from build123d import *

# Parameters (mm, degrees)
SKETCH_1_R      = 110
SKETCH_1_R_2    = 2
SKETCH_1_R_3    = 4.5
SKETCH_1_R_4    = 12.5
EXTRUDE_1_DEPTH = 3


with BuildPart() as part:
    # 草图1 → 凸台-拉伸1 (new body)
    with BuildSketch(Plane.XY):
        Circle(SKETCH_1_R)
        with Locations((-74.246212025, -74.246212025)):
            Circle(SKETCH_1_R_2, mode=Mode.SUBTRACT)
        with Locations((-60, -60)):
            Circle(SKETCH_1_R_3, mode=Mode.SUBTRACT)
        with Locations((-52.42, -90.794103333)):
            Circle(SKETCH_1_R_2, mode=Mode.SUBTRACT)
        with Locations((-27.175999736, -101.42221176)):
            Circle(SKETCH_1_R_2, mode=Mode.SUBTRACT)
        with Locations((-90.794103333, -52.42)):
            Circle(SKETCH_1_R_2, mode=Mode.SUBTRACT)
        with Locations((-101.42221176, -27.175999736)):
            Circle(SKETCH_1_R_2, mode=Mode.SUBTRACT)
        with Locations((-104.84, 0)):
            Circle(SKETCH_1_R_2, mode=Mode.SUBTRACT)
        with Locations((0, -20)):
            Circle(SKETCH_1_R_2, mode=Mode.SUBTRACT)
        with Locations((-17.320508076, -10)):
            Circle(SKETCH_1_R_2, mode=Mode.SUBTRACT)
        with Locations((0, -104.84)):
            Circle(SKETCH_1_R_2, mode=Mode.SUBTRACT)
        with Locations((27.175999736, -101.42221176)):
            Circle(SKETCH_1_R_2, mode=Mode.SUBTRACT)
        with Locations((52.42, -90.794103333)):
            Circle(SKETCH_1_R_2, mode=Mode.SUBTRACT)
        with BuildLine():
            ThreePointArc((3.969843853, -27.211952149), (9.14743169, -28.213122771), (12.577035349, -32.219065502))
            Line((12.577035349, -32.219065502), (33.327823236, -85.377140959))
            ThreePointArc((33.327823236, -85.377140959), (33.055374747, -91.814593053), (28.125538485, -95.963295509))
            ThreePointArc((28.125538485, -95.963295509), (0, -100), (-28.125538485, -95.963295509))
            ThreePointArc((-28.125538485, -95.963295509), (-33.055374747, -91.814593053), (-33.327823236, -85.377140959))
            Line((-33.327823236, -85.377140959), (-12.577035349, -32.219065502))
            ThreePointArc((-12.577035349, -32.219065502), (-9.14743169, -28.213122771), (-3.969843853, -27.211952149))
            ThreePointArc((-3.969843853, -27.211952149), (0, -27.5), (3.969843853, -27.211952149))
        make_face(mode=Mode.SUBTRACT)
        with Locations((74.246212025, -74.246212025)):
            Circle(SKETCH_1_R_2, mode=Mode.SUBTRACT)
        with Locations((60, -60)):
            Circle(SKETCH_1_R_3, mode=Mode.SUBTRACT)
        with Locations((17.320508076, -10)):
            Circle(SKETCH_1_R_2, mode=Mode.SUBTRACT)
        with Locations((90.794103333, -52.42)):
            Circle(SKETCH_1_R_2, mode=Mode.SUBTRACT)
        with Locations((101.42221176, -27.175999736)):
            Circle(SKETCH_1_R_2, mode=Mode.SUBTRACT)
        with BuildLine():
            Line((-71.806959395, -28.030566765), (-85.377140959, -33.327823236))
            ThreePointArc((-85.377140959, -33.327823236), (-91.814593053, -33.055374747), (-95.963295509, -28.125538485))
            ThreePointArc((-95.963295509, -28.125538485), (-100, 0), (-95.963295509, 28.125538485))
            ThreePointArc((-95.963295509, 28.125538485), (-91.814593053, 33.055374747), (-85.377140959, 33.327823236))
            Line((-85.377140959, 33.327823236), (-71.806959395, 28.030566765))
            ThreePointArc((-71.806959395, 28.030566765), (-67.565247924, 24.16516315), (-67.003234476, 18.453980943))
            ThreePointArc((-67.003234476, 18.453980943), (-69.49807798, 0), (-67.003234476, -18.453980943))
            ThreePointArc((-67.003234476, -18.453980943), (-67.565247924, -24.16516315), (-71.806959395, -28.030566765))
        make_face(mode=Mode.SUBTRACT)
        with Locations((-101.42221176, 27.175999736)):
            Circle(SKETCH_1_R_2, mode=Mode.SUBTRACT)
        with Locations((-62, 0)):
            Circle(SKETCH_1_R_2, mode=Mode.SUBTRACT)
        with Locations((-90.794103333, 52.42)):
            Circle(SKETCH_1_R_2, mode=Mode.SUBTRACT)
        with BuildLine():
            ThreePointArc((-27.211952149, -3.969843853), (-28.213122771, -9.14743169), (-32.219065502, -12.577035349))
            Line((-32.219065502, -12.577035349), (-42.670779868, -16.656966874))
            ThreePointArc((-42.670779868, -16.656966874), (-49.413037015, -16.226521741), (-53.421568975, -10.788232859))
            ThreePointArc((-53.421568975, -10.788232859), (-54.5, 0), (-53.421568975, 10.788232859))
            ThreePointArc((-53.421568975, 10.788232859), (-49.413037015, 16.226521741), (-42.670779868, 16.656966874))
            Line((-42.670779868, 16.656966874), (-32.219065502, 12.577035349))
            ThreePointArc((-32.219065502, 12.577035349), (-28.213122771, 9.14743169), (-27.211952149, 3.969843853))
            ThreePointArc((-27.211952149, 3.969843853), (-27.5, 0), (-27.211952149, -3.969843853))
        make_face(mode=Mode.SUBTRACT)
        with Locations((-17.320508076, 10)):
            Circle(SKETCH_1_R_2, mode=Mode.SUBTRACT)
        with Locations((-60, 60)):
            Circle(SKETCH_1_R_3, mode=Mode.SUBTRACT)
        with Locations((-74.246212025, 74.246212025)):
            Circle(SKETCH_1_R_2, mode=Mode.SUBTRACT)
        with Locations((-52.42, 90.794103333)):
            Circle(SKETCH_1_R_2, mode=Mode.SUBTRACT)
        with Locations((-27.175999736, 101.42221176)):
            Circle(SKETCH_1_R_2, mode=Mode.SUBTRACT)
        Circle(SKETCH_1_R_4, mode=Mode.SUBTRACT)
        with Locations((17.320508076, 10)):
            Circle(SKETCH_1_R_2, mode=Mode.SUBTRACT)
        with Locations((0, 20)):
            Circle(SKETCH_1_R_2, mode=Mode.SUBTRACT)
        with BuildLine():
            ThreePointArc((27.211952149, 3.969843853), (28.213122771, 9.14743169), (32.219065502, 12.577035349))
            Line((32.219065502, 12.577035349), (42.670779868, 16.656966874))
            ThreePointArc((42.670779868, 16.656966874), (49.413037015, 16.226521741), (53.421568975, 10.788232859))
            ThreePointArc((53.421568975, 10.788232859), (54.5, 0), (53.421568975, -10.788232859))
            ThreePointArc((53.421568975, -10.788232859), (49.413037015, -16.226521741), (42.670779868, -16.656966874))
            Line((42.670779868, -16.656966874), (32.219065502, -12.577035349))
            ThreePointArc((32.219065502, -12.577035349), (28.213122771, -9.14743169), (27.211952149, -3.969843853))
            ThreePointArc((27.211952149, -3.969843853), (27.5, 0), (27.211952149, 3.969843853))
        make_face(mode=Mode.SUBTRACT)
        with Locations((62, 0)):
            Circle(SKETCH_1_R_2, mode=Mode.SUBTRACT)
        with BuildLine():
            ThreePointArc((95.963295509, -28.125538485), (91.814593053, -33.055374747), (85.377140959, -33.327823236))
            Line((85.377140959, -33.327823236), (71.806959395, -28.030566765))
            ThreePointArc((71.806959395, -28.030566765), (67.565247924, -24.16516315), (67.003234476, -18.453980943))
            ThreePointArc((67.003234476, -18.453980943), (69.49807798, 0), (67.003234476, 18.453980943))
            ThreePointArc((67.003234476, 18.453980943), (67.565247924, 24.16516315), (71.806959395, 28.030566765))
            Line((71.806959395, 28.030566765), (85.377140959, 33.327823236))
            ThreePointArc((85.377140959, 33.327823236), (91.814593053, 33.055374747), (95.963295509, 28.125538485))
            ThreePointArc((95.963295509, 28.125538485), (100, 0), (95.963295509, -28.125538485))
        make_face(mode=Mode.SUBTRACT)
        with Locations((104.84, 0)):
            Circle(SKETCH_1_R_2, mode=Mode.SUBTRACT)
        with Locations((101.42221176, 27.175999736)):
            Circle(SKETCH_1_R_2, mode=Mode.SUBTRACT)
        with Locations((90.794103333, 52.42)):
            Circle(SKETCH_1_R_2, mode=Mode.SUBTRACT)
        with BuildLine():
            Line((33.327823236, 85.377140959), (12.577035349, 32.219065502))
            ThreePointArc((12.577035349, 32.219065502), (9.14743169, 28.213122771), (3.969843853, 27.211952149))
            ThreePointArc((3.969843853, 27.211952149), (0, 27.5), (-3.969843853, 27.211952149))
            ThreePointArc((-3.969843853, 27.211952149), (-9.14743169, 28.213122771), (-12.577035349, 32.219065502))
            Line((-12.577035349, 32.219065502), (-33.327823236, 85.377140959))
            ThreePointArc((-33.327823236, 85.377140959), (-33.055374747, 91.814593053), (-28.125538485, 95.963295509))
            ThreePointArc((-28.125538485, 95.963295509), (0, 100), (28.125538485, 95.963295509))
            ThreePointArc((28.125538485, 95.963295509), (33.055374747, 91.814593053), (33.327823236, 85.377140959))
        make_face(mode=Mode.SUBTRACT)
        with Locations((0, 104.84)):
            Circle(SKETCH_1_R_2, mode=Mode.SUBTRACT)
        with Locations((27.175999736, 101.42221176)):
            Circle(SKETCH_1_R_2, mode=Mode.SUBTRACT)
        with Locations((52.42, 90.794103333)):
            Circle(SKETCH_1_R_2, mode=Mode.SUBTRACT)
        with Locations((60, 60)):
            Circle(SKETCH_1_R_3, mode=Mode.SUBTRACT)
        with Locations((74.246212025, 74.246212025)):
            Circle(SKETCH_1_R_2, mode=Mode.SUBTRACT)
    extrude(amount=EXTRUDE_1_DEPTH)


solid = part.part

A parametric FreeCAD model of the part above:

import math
import FreeCAD as App
import Part
import Sketcher

V = App.Vector
Q = App.Units.Quantity

doc = App.newDocument("Part")
body = doc.addObject("PartDesign::Body", "Body")

# Sketch on XY plane
sketch1 = doc.addObject("Sketcher::SketchObject", "Sketch")
body.addObject(sketch1)
sketch1.AttachmentSupport = (doc.XY_Plane, [""])
sketch1.MapMode = "FlatFace"
sketch1.addGeometry([
    Part.Circle(V(0, 0, 0), V(0, 0, 1), 110),  # 0
    Part.Circle(V(-74.2, -74.2, 0), V(0, 0, 1), 2),  # 1
    Part.Circle(V(-60, -60, 0), V(0, 0, 1), 4.5),  # 2
    Part.Circle(V(-27.2, -101.4, 0), V(0, 0, 1), 2),  # 3
    Part.Circle(V(-52.4, -90.8, 0), V(0, 0, 1), 2),  # 4
    Part.Circle(V(-90.8, -52.4, 0), V(0, 0, 1), 2),  # 5
    Part.Circle(V(-101.4, -27.2, 0), V(0, 0, 1), 2),  # 6
    Part.Circle(V(-17.3, -10, 0), V(0, 0, 1), 2),  # 7
    Part.Circle(V(0, -104.8, 0), V(0, 0, 1), 2),  # 8
    Part.Circle(V(27.2, -101.4, 0), V(0, 0, 1), 2),  # 9
    Part.Circle(V(52.4, -90.8, 0), V(0, 0, 1), 2),  # 10
    Part.ArcOfCircle(Part.Circle(V(0, 0, 0), V(0, 0, 1), 27.5), math.radians(-98.3), math.radians(-81.7)),  # 11
    Part.ArcOfCircle(Part.Circle(V(5.1, -35.1, 0), V(0, 0, 1), 8), math.radians(21), math.radians(98)),  # 12
    Part.LineSegment(V(12.6, -32.2, 0), V(33.3, -85.4, 0)),  # 13
    Part.ArcOfCircle(Part.Circle(V(25.9, -88.3, 0), V(0, 0, 1), 8), math.radians(-74), math.radians(21)),  # 14
    Part.ArcOfCircle(Part.Circle(V(0, 0, 0), V(0, 0, 1), 100), math.radians(-106), math.radians(-74)),  # 15
    Part.ArcOfCircle(Part.Circle(V(-25.9, -88.3, 0), V(0, 0, 1), 8), math.radians(159), math.radians(254)),  # 16
    Part.LineSegment(V(-33.3, -85.4, 0), V(-12.6, -32.2, 0)),  # 17
    Part.ArcOfCircle(Part.Circle(V(-5.1, -35.1, 0), V(0, 0, 1), 8), math.radians(82), math.radians(159)),  # 18
    Part.Circle(V(74.2, -74.2, 0), V(0, 0, 1), 2),  # 19
    Part.Circle(V(60, -60, 0), V(0, 0, 1), 4.5),  # 20
    Part.Circle(V(0, -20, 0), V(0, 0, 1), 2),  # 21
    Part.Circle(V(17.3, -10, 0), V(0, 0, 1), 2),  # 22
    Part.Circle(V(90.8, -52.4, 0), V(0, 0, 1), 2),  # 23
    Part.Circle(V(101.4, -27.2, 0), V(0, 0, 1), 2),  # 24
    Part.Circle(V(-104.8, 0, 0), V(0, 0, 1), 2),  # 25
    Part.ArcOfCircle(Part.Circle(V(-74.7, -20.6, 0), V(0, 0, 1), 8), math.radians(-69), math.radians(15)),  # 26
    Part.LineSegment(V(-71.8, -28, 0), V(-85.4, -33.3, 0)),  # 27
    Part.ArcOfCircle(Part.Circle(V(-88.3, -25.9, 0), V(0, 0, 1), 8), math.radians(-164), math.radians(-69)),  # 28
    Part.ArcOfCircle(Part.Circle(V(0, 0, 0), V(0, 0, 1), 100), math.radians(164), math.radians(196)),  # 29
    Part.ArcOfCircle(Part.Circle(V(-88.3, 25.9, 0), V(0, 0, 1), 8), math.radians(69), math.radians(164)),  # 30
    Part.LineSegment(V(-85.4, 33.3, 0), V(-71.8, 28, 0)),  # 31
    Part.ArcOfCircle(Part.Circle(V(-74.7, 20.6, 0), V(0, 0, 1), 8), math.radians(-15), math.radians(69)),  # 32
    Part.ArcOfCircle(Part.Circle(V(0, 0, 0), V(0, 0, 1), 69.5), math.radians(165), math.radians(195)),  # 33
    Part.Circle(V(-62, 0, 0), V(0, 0, 1), 2),  # 34
    Part.Circle(V(-101.4, 27.2, 0), V(0, 0, 1), 2),  # 35
    Part.Circle(V(-90.8, 52.4, 0), V(0, 0, 1), 2),  # 36
    Part.ArcOfCircle(Part.Circle(V(0, 0, 0), V(0, 0, 1), 27.5), math.radians(171.7), math.radians(188.3)),  # 37
    Part.ArcOfCircle(Part.Circle(V(-35.1, -5.1, 0), V(0, 0, 1), 8), math.radians(-69), math.radians(8)),  # 38
    Part.LineSegment(V(-32.2, -12.6, 0), V(-42.7, -16.7, 0)),  # 39
    Part.ArcOfCircle(Part.Circle(V(-45.6, -9.2, 0), V(0, 0, 1), 8), math.radians(-169), math.radians(-69)),  # 40
    Part.ArcOfCircle(Part.Circle(V(0, 0, 0), V(0, 0, 1), 54.5), math.radians(169), math.radians(191)),  # 41
    Part.ArcOfCircle(Part.Circle(V(-45.6, 9.2, 0), V(0, 0, 1), 8), math.radians(69), math.radians(169)),  # 42
    Part.LineSegment(V(-42.7, 16.7, 0), V(-32.2, 12.6, 0)),  # 43
    Part.ArcOfCircle(Part.Circle(V(-35.1, 5.1, 0), V(0, 0, 1), 8), math.radians(-8), math.radians(69)),  # 44
    Part.Circle(V(-17.3, 10, 0), V(0, 0, 1), 2),  # 45
    Part.Circle(V(-60, 60, 0), V(0, 0, 1), 4.5),  # 46
    Part.Circle(V(-74.2, 74.2, 0), V(0, 0, 1), 2),  # 47
    Part.Circle(V(-52.4, 90.8, 0), V(0, 0, 1), 2),  # 48
    Part.Circle(V(-27.2, 101.4, 0), V(0, 0, 1), 2),  # 49
    Part.Circle(V(0, 0, 0), V(0, 0, 1), 12.5),  # 50
    Part.Circle(V(17.3, 10, 0), V(0, 0, 1), 2),  # 51
    Part.Circle(V(0, 20, 0), V(0, 0, 1), 2),  # 52
    Part.ArcOfCircle(Part.Circle(V(0, 0, 0), V(0, 0, 1), 27.5), math.radians(-8.3), math.radians(8.3)),  # 53
    Part.ArcOfCircle(Part.Circle(V(35.1, 5.1, 0), V(0, 0, 1), 8), math.radians(111), math.radians(188)),  # 54
    Part.LineSegment(V(32.2, 12.6, 0), V(42.7, 16.7, 0)),  # 55
    Part.ArcOfCircle(Part.Circle(V(45.6, 9.2, 0), V(0, 0, 1), 8), math.radians(11), math.radians(111)),  # 56
    Part.ArcOfCircle(Part.Circle(V(0, 0, 0), V(0, 0, 1), 54.5), math.radians(-11), math.radians(11)),  # 57
    Part.ArcOfCircle(Part.Circle(V(45.6, -9.2, 0), V(0, 0, 1), 8), math.radians(-111), math.radians(-11)),  # 58
    Part.LineSegment(V(42.7, -16.7, 0), V(32.2, -12.6, 0)),  # 59
    Part.ArcOfCircle(Part.Circle(V(35.1, -5.1, 0), V(0, 0, 1), 8), math.radians(172), math.radians(249)),  # 60
    Part.Circle(V(62, 0, 0), V(0, 0, 1), 2),  # 61
    Part.ArcOfCircle(Part.Circle(V(0, 0, 0), V(0, 0, 1), 100), math.radians(-16), math.radians(16)),  # 62
    Part.ArcOfCircle(Part.Circle(V(88.3, -25.9, 0), V(0, 0, 1), 8), math.radians(-111), math.radians(-16)),  # 63
    Part.LineSegment(V(85.4, -33.3, 0), V(71.8, -28, 0)),  # 64
    Part.ArcOfCircle(Part.Circle(V(74.7, -20.6, 0), V(0, 0, 1), 8), math.radians(165), math.radians(249)),  # 65
    Part.ArcOfCircle(Part.Circle(V(0, 0, 0), V(0, 0, 1), 69.5), math.radians(-15), math.radians(15)),  # 66
    Part.ArcOfCircle(Part.Circle(V(74.7, 20.6, 0), V(0, 0, 1), 8), math.radians(111), math.radians(195)),  # 67
    Part.LineSegment(V(71.8, 28, 0), V(85.4, 33.3, 0)),  # 68
    Part.ArcOfCircle(Part.Circle(V(88.3, 25.9, 0), V(0, 0, 1), 8), math.radians(16), math.radians(111)),  # 69
    Part.Circle(V(104.8, 0, 0), V(0, 0, 1), 2),  # 70
    Part.Circle(V(101.4, 27.2, 0), V(0, 0, 1), 2),  # 71
    Part.Circle(V(90.8, 52.4, 0), V(0, 0, 1), 2),  # 72
    Part.ArcOfCircle(Part.Circle(V(25.9, 88.3, 0), V(0, 0, 1), 8), math.radians(-21), math.radians(74)),  # 73
    Part.LineSegment(V(33.3, 85.4, 0), V(12.6, 32.2, 0)),  # 74
    Part.ArcOfCircle(Part.Circle(V(5.1, 35.1, 0), V(0, 0, 1), 8), math.radians(-98), math.radians(-21)),  # 75
    Part.ArcOfCircle(Part.Circle(V(0, 0, 0), V(0, 0, 1), 27.5), math.radians(81.7), math.radians(98.3)),  # 76
    Part.ArcOfCircle(Part.Circle(V(-5.1, 35.1, 0), V(0, 0, 1), 8), math.radians(-159), math.radians(-82)),  # 77
    Part.LineSegment(V(-12.6, 32.2, 0), V(-33.3, 85.4, 0)),  # 78
    Part.ArcOfCircle(Part.Circle(V(-25.9, 88.3, 0), V(0, 0, 1), 8), math.radians(106), math.radians(201)),  # 79
    Part.ArcOfCircle(Part.Circle(V(0, 0, 0), V(0, 0, 1), 100), math.radians(74), math.radians(106)),  # 80
    Part.Circle(V(0, 104.8, 0), V(0, 0, 1), 2),  # 81
    Part.Circle(V(52.4, 90.8, 0), V(0, 0, 1), 2),  # 82
    Part.Circle(V(27.2, 101.4, 0), V(0, 0, 1), 2),  # 83
    Part.Circle(V(60, 60, 0), V(0, 0, 1), 4.5),  # 84
    Part.Circle(V(74.2, 74.2, 0), V(0, 0, 1), 2),  # 85
], False)
sketch1.addConstraint([
    Sketcher.Constraint("Tangent", 11, 2, 12, 2),
    Sketcher.Constraint("Tangent", 12, 1, 13, 1),
    Sketcher.Constraint("Tangent", 13, 2, 14, 2),
    Sketcher.Constraint("Tangent", 14, 1, 15, 2),
    Sketcher.Constraint("Tangent", 15, 1, 16, 2),
    Sketcher.Constraint("Tangent", 16, 1, 17, 1),
    Sketcher.Constraint("Tangent", 17, 2, 18, 2),
    Sketcher.Constraint("Tangent", 18, 1, 11, 1),
    Sketcher.Constraint("Tangent", 26, 1, 27, 1),
    Sketcher.Constraint("Tangent", 27, 2, 28, 2),
    Sketcher.Constraint("Tangent", 28, 1, 29, 2),
    Sketcher.Constraint("Tangent", 29, 1, 30, 2),
    Sketcher.Constraint("Tangent", 30, 1, 31, 1),
    Sketcher.Constraint("Tangent", 31, 2, 32, 2),
    Sketcher.Constraint("Tangent", 32, 1, 33, 1),
    Sketcher.Constraint("Tangent", 33, 2, 26, 2),
    Sketcher.Constraint("Tangent", 37, 2, 38, 2),
    Sketcher.Constraint("Tangent", 38, 1, 39, 1),
    Sketcher.Constraint("Tangent", 39, 2, 40, 2),
    Sketcher.Constraint("Tangent", 40, 1, 41, 2),
    Sketcher.Constraint("Tangent", 41, 1, 42, 2),
    Sketcher.Constraint("Tangent", 42, 1, 43, 1),
    Sketcher.Constraint("Tangent", 43, 2, 44, 2),
    Sketcher.Constraint("Tangent", 44, 1, 37, 1),
    Sketcher.Constraint("Tangent", 53, 2, 54, 2),
    Sketcher.Constraint("Tangent", 54, 1, 55, 1),
    Sketcher.Constraint("Tangent", 55, 2, 56, 2),
    Sketcher.Constraint("Tangent", 56, 1, 57, 2),
    Sketcher.Constraint("Tangent", 57, 1, 58, 2),
    Sketcher.Constraint("Tangent", 58, 1, 59, 1),
    Sketcher.Constraint("Tangent", 59, 2, 60, 2),
    Sketcher.Constraint("Tangent", 60, 1, 53, 1),
    Sketcher.Constraint("Tangent", 62, 1, 63, 2),
    Sketcher.Constraint("Tangent", 63, 1, 64, 1),
    Sketcher.Constraint("Tangent", 64, 2, 65, 2),
    Sketcher.Constraint("Tangent", 65, 1, 66, 1),
    Sketcher.Constraint("Tangent", 66, 2, 67, 2),
    Sketcher.Constraint("Tangent", 67, 1, 68, 1),
    Sketcher.Constraint("Tangent", 68, 2, 69, 2),
    Sketcher.Constraint("Tangent", 69, 1, 62, 2),
    Sketcher.Constraint("Tangent", 73, 1, 74, 1),
    Sketcher.Constraint("Tangent", 74, 2, 75, 2),
    Sketcher.Constraint("Tangent", 75, 1, 76, 1),
    Sketcher.Constraint("Tangent", 76, 2, 77, 2),
    Sketcher.Constraint("Tangent", 77, 1, 78, 1),
    Sketcher.Constraint("Tangent", 78, 2, 79, 2),
    Sketcher.Constraint("Tangent", 79, 1, 80, 2),
    Sketcher.Constraint("Tangent", 80, 1, 73, 2),
    Sketcher.Constraint("Coincident", 0, 3, -1, 1),
    Sketcher.Constraint("Coincident", 11, 3, -1, 1),
    Sketcher.Constraint("Coincident", 15, 3, -1, 1),
    Sketcher.Constraint("Coincident", 29, 3, -1, 1),
    Sketcher.Constraint("Coincident", 33, 3, -1, 1),
    Sketcher.Constraint("Coincident", 37, 3, -1, 1),
    Sketcher.Constraint("Coincident", 41, 3, -1, 1),
    Sketcher.Constraint("Coincident", 50, 3, -1, 1),
    Sketcher.Constraint("Coincident", 53, 3, -1, 1),
    Sketcher.Constraint("Coincident", 57, 3, -1, 1),
    Sketcher.Constraint("Coincident", 62, 3, -1, 1),
    Sketcher.Constraint("Coincident", 66, 3, -1, 1),
    Sketcher.Constraint("Coincident", 76, 3, -1, 1),
    Sketcher.Constraint("Coincident", 80, 3, -1, 1),
    Sketcher.Constraint("Equal", 1, 3),
    Sketcher.Constraint("Equal", 3, 4),
    Sketcher.Constraint("Equal", 4, 5),
    Sketcher.Constraint("Equal", 5, 6),
    Sketcher.Constraint("Equal", 6, 7),
    Sketcher.Constraint("Equal", 7, 8),
    Sketcher.Constraint("Equal", 8, 9),
    Sketcher.Constraint("Equal", 9, 10),
    Sketcher.Constraint("Equal", 12, 14),
    Sketcher.Constraint("Equal", 14, 16),
    Sketcher.Constraint("Equal", 16, 18),
    Sketcher.Constraint("Equal", 10, 19),
    Sketcher.Constraint("Equal", 2, 20),
    Sketcher.Constraint("Equal", 19, 21),
    Sketcher.Constraint("Equal", 21, 22),
    Sketcher.Constraint("Equal", 22, 23),
    Sketcher.Constraint("Equal", 23, 24),
    Sketcher.Constraint("Equal", 24, 25),
    Sketcher.Constraint("Equal", 18, 26),
    Sketcher.Constraint("Equal", 26, 28),
    Sketcher.Constraint("Equal", 15, 29),
    Sketcher.Constraint("Equal", 28, 30),
    Sketcher.Constraint("Equal", 30, 32),
    Sketcher.Constraint("Equal", 25, 34),
    Sketcher.Constraint("Equal", 34, 35),
    Sketcher.Constraint("Equal", 35, 36),
    Sketcher.Constraint("Equal", 11, 37),
    Sketcher.Constraint("Equal", 32, 38),
    Sketcher.Constraint("Equal", 38, 40),
    Sketcher.Constraint("Equal", 40, 42),
    Sketcher.Constraint("Equal", 42, 44),
    Sketcher.Constraint("Equal", 36, 45),
    Sketcher.Constraint("Equal", 20, 46),
    Sketcher.Constraint("Equal", 45, 47),
    Sketcher.Constraint("Equal", 47, 48),
    Sketcher.Constraint("Equal", 48, 49),
    Sketcher.Constraint("Equal", 49, 51),
    Sketcher.Constraint("Equal", 51, 52),
    Sketcher.Constraint("Equal", 37, 53),
    Sketcher.Constraint("Equal", 44, 54),
    Sketcher.Constraint("Equal", 54, 56),
    Sketcher.Constraint("Equal", 41, 57),
    Sketcher.Constraint("Equal", 56, 58),
    Sketcher.Constraint("Equal", 58, 60),
    Sketcher.Constraint("Equal", 52, 61),
    Sketcher.Constraint("Equal", 29, 62),
    Sketcher.Constraint("Equal", 60, 63),
    Sketcher.Constraint("Equal", 63, 65),
    Sketcher.Constraint("Equal", 33, 66),
    Sketcher.Constraint("Equal", 65, 67),
    Sketcher.Constraint("Equal", 67, 69),
    Sketcher.Constraint("Equal", 61, 70),
    Sketcher.Constraint("Equal", 70, 71),
    Sketcher.Constraint("Equal", 71, 72),
    Sketcher.Constraint("Equal", 69, 73),
    Sketcher.Constraint("Equal", 73, 75),
    Sketcher.Constraint("Equal", 53, 76),
    Sketcher.Constraint("Equal", 75, 77),
    Sketcher.Constraint("Equal", 77, 79),
    Sketcher.Constraint("Equal", 62, 80),
    Sketcher.Constraint("Equal", 72, 81),
    Sketcher.Constraint("Equal", 81, 82),
    Sketcher.Constraint("Equal", 82, 83),
    Sketcher.Constraint("Equal", 46, 84),
    Sketcher.Constraint("Equal", 83, 85),
    Sketcher.Constraint("Symmetric", 24, 3, 35, 3, -1, 1),
    Sketcher.Constraint("Symmetric", 23, 3, 36, 3, -1, 1),
    Sketcher.Constraint("Symmetric", 22, 3, 45, 3, -1, 1),
    Sketcher.Constraint("Symmetric", 20, 3, 46, 3, -1, 1),
    Sketcher.Constraint("Symmetric", 19, 3, 47, 3, -1, 1),
    Sketcher.Constraint("Symmetric", 10, 3, 48, 3, -1, 1),
    Sketcher.Constraint("Symmetric", 9, 3, 49, 3, -1, 1),
    Sketcher.Constraint("Symmetric", 7, 3, 51, 3, -1, 1),
    Sketcher.Constraint("Symmetric", 21, 3, 52, 3, -1, 1),
    Sketcher.Constraint("Symmetric", 34, 3, 61, 3, -1, 1),
    Sketcher.Constraint("Symmetric", 25, 3, 70, 3, -1, 1),
    Sketcher.Constraint("Symmetric", 6, 3, 71, 3, -1, 1),
    Sketcher.Constraint("Symmetric", 5, 3, 72, 3, -1, 1),
    Sketcher.Constraint("Symmetric", 8, 3, 81, 3, -1, 1),
    Sketcher.Constraint("Symmetric", 4, 3, 82, 3, -1, 1),
    Sketcher.Constraint("Symmetric", 3, 3, 83, 3, -1, 1),
    Sketcher.Constraint("Symmetric", 2, 3, 84, 3, -1, 1),
    Sketcher.Constraint("Symmetric", 1, 3, 85, 3, -1, 1),
    Sketcher.Constraint("Symmetric", 38, 1, 54, 1, -1, 1),
    Sketcher.Constraint("Symmetric", 42, 1, 58, 1, -1, 1),
    Sketcher.Constraint("Symmetric", 30, 1, 63, 1, -1, 1),
    Sketcher.Constraint("Symmetric", 26, 1, 67, 1, -1, 1),
    Sketcher.Constraint("Symmetric", 16, 1, 73, 1, -1, 1),
    Sketcher.Constraint("Symmetric", 12, 1, 77, 1, -1, 1),
    Sketcher.Constraint("Symmetric", 3, 3, 9, 3, -2),
    Sketcher.Constraint("Symmetric", 4, 3, 10, 3, -2),
    Sketcher.Constraint("Symmetric", 1, 3, 19, 3, -2),
    Sketcher.Constraint("Symmetric", 2, 3, 20, 3, -2),
    Sketcher.Constraint("Symmetric", 7, 3, 22, 3, -2),
    Sketcher.Constraint("Symmetric", 5, 3, 23, 3, -2),
    Sketcher.Constraint("Symmetric", 6, 3, 24, 3, -2),
    Sketcher.Constraint("Symmetric", 13, 2, 16, 1, -2),
    Sketcher.Constraint("Symmetric", 43, 2, 54, 1, -2),
    Sketcher.Constraint("Symmetric", 27, 2, 63, 1, -2),
    Sketcher.Constraint("PointOnObject", 8, 3, -2),
    Sketcher.Constraint("PointOnObject", 21, 3, -2),
    Sketcher.Constraint("PointOnObject", 25, 3, -1),
    Sketcher.Constraint("PointOnObject", 34, 3, -1),
    Sketcher.Constraint("Perpendicular", 13, 27),
    Sketcher.Constraint("Parallel", 27, 39),
    Sketcher.Constraint("Diameter", 0, Q("220 mm")),
    Sketcher.Constraint("Diameter", 1, Q("4 mm")),
    Sketcher.Constraint("Diameter", 2, Q("9 mm")),
    Sketcher.Constraint("Diameter", 50, Q("25 mm")),
    Sketcher.Constraint("Radius", 12, Q("8 mm")),
    Sketcher.Constraint("Radius", 15, Q("100 mm")),
    Sketcher.Constraint("Radius", 11, Q("27.5 mm")),
    Sketcher.Constraint("Radius", 41, Q("54.5 mm")),
    Sketcher.Constraint("DistanceX", 2, 3, -1, 1, Q("60 mm")),
    Sketcher.Constraint("DistanceY", 2, 3, -1, 1, Q("60 mm")),
    Sketcher.Constraint("DistanceY", 7, 3, -1, 1, Q("10 mm")),
    Sketcher.Constraint("DistanceY", 21, 3, -1, 1, Q("20 mm")),
    Sketcher.Constraint("DistanceX", 34, 3, -1, 1, Q("62 mm")),
    Sketcher.Constraint("DistanceX", 4, 3, -1, 1, Q("52.42 mm")),
    Sketcher.Constraint("DistanceY", 5, 3, -1, 1, Q("52.42 mm")),
    Sketcher.Constraint("DistanceY", 8, 3, -1, 1, Q("104.84 mm")),
    Sketcher.Constraint("DistanceX", 25, 3, -1, 1, Q("104.84 mm")),
    Sketcher.Constraint("DistanceX", 3, 3, -1, 1, Q("27.176 mm")),
    Sketcher.Constraint("DistanceY", 6, 3, -1, 1, Q("27.176 mm")),
    Sketcher.Constraint("Radius", 33, Q("69.498078 mm")),
    Sketcher.Constraint("Distance", 39, Q("11.219812 mm")),
    Sketcher.Constraint("DistanceY", 3, 3, -1, 1, Q("101.422212 mm")),
    Sketcher.Constraint("DistanceX", 6, 3, -1, 1, Q("101.422212 mm")),
    Sketcher.Constraint("DistanceX", 7, 3, -1, 1, Q("17.320508 mm")),
    Sketcher.Constraint("DistanceY", 14, 3, -1, 1, Q("88.286232 mm")),
    Sketcher.Constraint("DistanceX", 26, 3, -1, 1, Q("74.71605 mm")),
    Sketcher.Constraint("DistanceX", 28, 3, -1, 1, Q("88.286232 mm")),
    Sketcher.Constraint("DistanceX", 1, 3, -1, 1, Q("74.246212 mm")),
    Sketcher.Constraint("DistanceY", 1, 3, -1, 1, Q("74.246212 mm")),
    Sketcher.Constraint("DistanceY", 4, 3, -1, 1, Q("90.794103 mm")),
    Sketcher.Constraint("DistanceX", 5, 3, -1, 1, Q("90.794103 mm")),
])
pad1 = doc.addObject("PartDesign::Pad", "Pad")
body.addObject(pad1)
pad1.Profile = sketch1
pad1.Length = 3

doc.recompute()
